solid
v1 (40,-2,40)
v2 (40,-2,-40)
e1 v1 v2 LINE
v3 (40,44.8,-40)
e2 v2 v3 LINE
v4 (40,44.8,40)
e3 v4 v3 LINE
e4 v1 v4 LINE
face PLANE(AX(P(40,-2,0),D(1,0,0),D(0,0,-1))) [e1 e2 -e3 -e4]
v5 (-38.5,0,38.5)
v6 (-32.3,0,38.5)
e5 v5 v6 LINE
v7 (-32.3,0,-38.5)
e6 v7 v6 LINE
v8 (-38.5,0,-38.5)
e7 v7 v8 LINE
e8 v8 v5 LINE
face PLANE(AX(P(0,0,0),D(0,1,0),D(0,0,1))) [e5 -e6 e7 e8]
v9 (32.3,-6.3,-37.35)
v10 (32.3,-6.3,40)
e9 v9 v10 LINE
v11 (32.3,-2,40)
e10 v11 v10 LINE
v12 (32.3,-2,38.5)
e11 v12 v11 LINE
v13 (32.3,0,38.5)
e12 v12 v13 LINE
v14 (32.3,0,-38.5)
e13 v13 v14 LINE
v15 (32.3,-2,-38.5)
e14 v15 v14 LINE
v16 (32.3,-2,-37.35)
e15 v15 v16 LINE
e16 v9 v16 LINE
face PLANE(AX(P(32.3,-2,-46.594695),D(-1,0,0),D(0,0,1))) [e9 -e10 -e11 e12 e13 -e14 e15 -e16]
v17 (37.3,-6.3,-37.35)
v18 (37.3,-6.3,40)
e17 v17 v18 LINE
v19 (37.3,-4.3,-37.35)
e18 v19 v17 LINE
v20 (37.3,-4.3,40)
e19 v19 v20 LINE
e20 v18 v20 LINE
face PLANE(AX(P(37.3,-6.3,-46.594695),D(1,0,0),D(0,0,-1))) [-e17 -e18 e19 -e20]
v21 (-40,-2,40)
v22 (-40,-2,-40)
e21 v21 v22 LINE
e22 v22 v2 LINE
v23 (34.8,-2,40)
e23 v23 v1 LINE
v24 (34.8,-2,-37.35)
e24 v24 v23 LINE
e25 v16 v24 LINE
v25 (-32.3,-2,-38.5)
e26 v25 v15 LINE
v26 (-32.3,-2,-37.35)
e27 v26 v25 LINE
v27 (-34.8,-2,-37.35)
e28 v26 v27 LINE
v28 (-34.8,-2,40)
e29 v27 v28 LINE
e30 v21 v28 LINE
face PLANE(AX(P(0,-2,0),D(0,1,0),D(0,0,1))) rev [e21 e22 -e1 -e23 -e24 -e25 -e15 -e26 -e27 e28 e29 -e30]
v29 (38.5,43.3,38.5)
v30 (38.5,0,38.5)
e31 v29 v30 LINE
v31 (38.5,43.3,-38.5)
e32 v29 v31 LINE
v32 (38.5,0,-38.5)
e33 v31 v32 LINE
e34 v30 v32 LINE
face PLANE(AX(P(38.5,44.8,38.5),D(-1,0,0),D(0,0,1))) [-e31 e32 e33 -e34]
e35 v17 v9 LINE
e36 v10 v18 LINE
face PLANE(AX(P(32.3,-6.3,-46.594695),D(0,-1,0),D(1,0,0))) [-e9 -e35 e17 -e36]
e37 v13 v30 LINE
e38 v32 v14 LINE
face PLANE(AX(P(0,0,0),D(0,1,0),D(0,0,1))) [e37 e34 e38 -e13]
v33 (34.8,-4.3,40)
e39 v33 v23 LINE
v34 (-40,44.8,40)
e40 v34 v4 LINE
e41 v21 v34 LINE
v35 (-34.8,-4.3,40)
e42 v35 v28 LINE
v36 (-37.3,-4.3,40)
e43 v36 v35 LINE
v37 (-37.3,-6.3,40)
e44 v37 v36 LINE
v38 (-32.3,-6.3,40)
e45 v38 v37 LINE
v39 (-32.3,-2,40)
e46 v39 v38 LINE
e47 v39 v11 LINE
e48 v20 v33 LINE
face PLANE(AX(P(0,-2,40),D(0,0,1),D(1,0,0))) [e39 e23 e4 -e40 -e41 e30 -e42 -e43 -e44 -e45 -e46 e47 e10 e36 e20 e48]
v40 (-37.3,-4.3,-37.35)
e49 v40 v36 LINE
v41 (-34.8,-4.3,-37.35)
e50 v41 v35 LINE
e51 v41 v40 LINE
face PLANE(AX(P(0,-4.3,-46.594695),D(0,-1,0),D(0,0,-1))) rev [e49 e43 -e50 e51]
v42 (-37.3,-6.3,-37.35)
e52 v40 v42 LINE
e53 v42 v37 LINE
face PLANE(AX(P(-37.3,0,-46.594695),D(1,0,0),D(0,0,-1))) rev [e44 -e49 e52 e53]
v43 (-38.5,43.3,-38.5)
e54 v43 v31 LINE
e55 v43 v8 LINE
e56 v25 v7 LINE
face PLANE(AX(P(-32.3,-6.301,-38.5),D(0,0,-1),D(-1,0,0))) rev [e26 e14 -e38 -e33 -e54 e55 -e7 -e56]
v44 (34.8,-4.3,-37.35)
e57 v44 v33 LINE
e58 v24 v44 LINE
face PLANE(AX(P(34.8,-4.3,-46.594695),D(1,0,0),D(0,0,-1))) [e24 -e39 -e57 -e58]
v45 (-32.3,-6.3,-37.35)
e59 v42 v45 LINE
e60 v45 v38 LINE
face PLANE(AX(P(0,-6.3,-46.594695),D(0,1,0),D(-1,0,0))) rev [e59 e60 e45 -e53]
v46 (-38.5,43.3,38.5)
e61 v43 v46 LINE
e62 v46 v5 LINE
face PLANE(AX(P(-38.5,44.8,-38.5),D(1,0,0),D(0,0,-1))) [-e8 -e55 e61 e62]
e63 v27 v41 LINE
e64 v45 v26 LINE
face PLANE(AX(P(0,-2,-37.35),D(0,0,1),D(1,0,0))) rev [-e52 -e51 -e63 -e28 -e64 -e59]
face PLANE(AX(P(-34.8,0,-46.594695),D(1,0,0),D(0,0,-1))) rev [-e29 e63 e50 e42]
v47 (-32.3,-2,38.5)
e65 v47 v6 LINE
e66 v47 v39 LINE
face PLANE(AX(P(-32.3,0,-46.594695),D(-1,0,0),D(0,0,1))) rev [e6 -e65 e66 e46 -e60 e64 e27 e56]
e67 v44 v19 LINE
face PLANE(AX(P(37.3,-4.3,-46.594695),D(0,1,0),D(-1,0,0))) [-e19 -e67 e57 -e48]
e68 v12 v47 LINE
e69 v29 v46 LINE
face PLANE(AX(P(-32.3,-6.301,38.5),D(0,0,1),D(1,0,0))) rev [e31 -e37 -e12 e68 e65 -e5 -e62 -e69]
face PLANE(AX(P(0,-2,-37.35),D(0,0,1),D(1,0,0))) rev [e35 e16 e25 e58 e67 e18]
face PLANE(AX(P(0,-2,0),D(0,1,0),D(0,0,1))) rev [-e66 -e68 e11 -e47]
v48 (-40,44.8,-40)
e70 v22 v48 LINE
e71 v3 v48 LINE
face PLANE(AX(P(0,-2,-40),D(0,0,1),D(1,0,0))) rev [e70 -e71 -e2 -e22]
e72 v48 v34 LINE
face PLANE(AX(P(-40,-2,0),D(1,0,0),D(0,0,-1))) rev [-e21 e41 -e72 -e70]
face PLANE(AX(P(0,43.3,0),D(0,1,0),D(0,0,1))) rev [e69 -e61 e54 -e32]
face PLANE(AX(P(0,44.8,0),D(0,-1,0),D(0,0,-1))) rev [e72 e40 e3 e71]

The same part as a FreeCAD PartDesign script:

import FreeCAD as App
import Part
import Sketcher

V = App.Vector
Q = App.Units.Quantity


def add_polygon(sketch, points):
    """Adds a closed chain of lines whose ends are joined by coincident constraints."""
    first, n = sketch.GeometryCount, len(points)
    for a, b in zip(points, points[1:] + points[:1]):
        sketch.addGeometry(Part.LineSegment(App.Vector(*a, 0), App.Vector(*b, 0)), False)
    for i in range(n):
        sketch.addConstraint(Sketcher.Constraint("Coincident", first + i, 2, first + (i + 1) % n, 1))

doc = App.newDocument("Part")
params = doc.addObject("Spreadsheet::Sheet", "Params")
for row, (alias, value) in enumerate([
    ("sketch1_width", "80 mm"),
    ("pad1_length", "2 mm"),
    ("sketch2_width", "5 mm"),
    ("sketch2_height", "2 mm"),
    ("sketch2_height2", "2.3 mm"),
    ("pad2_length", "77.35 mm"),
    ("sketch3_height", "77 mm"),
    ("sketch3_width", "64.6 mm"),
    ("sketch4_width", "80 mm"),
    ("sketch4_width2", "77 mm"),
    ("pad3_length", "44.8 mm"),
    ("sketch5_width", "80 mm"),
    ("pad4_length", "1.5 mm"),
], start=1):
    params.set(f"A{row}", alias)
    params.set(f"B{row}", "=" + value)
    params.setAlias(f"B{row}", alias)

body = doc.addObject("PartDesign::Body", "Body")

# Sketch on XZ plane
sketch1 = body.newObject("Sketcher::SketchObject", "Sketch")
sketch1.AttachmentSupport = (doc.getObject("XZ_Plane"), [""])
sketch1.MapMode = "FlatFace"
add_polygon(sketch1, [(-40, -40), (-40, 40), (40, 40), (40, -40)])  # lines 0-3
sketch1.addConstraint([
    Sketcher.Constraint("Vertical", 0),
    Sketcher.Constraint("Horizontal", 1),
    Sketcher.Constraint("Vertical", 2),
    Sketcher.Constraint("Horizontal", 3),
    Sketcher.Constraint("Symmetric", 0, 2, 2, 2, -1, 1),
    Sketcher.Constraint("Equal", 3, 0),
    Sketcher.Constraint("DistanceX", 1, 1, 1, 2, Q("80 mm")),
])
sketch1.setExpression("Constraints[10]", "Params.sketch1_width")
pad1 = body.newObject("PartDesign::Pad", "Pad")
pad1.Profile = sketch1
pad1.setExpression("Length", "Params.pad1_length")

# Sketch on XY plane
sketch2 = body.newObject("Sketcher::SketchObject", "Sketch001")
sketch2.AttachmentSupport = (doc.getObject("XY_Plane"), [""])
sketch2.MapMode = "FlatFace"
sketch2.AttachmentOffset = App.Placement(V(0, 0, 40), App.Rotation())
add_polygon(sketch2, [(-32.3, -2), (-34.8, -2), (-34.8, -4.3), (-37.3, -4.3), (-37.3, -6.3), (-32.3, -6.3)])  # lines 0-5
add_polygon(sketch2, [(32.3, -6.3), (37.3, -6.3), (37.3, -4.3), (34.8, -4.3), (34.8, -2), (32.3, -2)])  # lines 6-11
sketch2.addConstraint([
    Sketcher.Constraint("Horizontal", 0),
    Sketcher.Constraint("Vertical", 1),
    Sketcher.Constraint("Horizontal", 2),
    Sketcher.Constraint("Vertical", 3),
    Sketcher.Constraint("Horizontal", 4),
    Sketcher.Constraint("Vertical", 5),
    Sketcher.Constraint("Horizontal", 6),
    Sketcher.Constraint("Vertical", 7),
    Sketcher.Constraint("Horizontal", 8),
    Sketcher.Constraint("Vertical", 9),
    Sketcher.Constraint("Horizontal", 10),
    Sketcher.Constraint("Vertical", 11),
    Sketcher.Constraint("Symmetric", 3, 2, 6, 2, -2),
    Sketcher.Constraint("Symmetric", 1, 2, 8, 2, -2),
    Sketcher.Constraint("Symmetric", 5, 2, 10, 2, -2),
    Sketcher.Constraint("Equal", 0, 2),
    Sketcher.Constraint("DistanceX", 4, 1, 4, 2, Q("5 mm")),
    Sketcher.Constraint("DistanceY", 3, 2, 3, 1, Q("2 mm")),
    Sketcher.Constraint("DistanceY", 1, 2, 1, 1, Q("2.3 mm")),
    Sketcher.Constraint("DistanceY", 0, 2, -1, 1, Q("2 mm")),
    Sketcher.Constraint("DistanceX", 0, 2, -1, 1, Q("34.8 mm")),
])
sketch2.setExpression("Constraints[28]", "Params.sketch2_width")
sketch2.setExpression("Constraints[29]", "Params.sketch2_height")
sketch2.setExpression("Constraints[30]", "Params.sketch2_height2")
pad2 = body.newObject("PartDesign::Pad", "Pad001")
pad2.Profile = sketch2
pad2.setExpression("Length", "Params.pad2_length")
pad2.Reversed = True

# Sketch on XZ plane
sketch3 = body.newObject("Sketcher::SketchObject", "Sketch002")
sketch3.AttachmentSupport = (doc.getObject("XZ_Plane"), [""])
sketch3.MapMode = "FlatFace"
add_polygon(sketch3, [(-32.3, -38.5), (-32.3, 38.5), (32.3, 38.5), (32.3, -38.5)])  # lines 0-3
sketch3.addConstraint([
    Sketcher.Constraint("Vertical", 0),
    Sketcher.Constraint("Horizontal", 1),
    Sketcher.Constraint("Vertical", 2),
    Sketcher.Constraint("Horizontal", 3),
    Sketcher.Constraint("Symmetric", 0, 2, 2, 2, -1, 1),
    Sketcher.Constraint("DistanceY", 0, 1, 0, 2, Q("77 mm")),
    Sketcher.Constraint("DistanceX", 1, 1, 1, 2, Q("64.6 mm")),
])
sketch3.setExpression("Constraints[9]", "Params.sketch3_height")
sketch3.setExpression("Constraints[10]", "Params.sketch3_width")
pocket1 = body.newObject("PartDesign::Pocket", "Pocket")
pocket1.Profile = sketch3
pocket1.Type = "UpToFirst"
pocket1.Reversed = True

# Sketch on XZ plane
sketch4 = body.newObject("Sketcher::SketchObject", "Sketch003")
sketch4.AttachmentSupport = (doc.getObject("XZ_Plane"), [""])
sketch4.MapMode = "FlatFace"
add_polygon(sketch4, [(-40, -40), (-40, 40), (40, 40), (40, -40)])  # lines 0-3
add_polygon(sketch4, [(38.5, 38.5), (-38.5, 38.5), (-38.5, -38.5), (38.5, -38.5)])  # lines 4-7
sketch4.addConstraint([
    Sketcher.Constraint("Vertical", 0),
    Sketcher.Constraint("Horizontal", 1),
    Sketcher.Constraint("Vertical", 2),
    Sketcher.Constraint("Horizontal", 3),
    Sketcher.Constraint("Horizontal", 4),
    Sketcher.Constraint("Vertical", 5),
    Sketcher.Constraint("Horizontal", 6),
    Sketcher.Constraint("Vertical", 7),
    Sketcher.Constraint("Symmetric", 0, 2, 2, 2, -1, 1),
    Sketcher.Constraint("Symmetric", 4, 2, 6, 2, -1, 1),
    Sketcher.Constraint("Equal", 3, 0),
    Sketcher.Constraint("Equal", 6, 5),
    Sketcher.Constraint("DistanceX", 1, 1, 1, 2, Q("80 mm")),
    Sketcher.Constraint("DistanceX", 4, 2, 4, 1, Q("77 mm")),
])
sketch4.setExpression("Constraints[20]", "Params.sketch4_width")
sketch4.setExpression("Constraints[21]", "Params.sketch4_width2")
pad3 = body.newObject("PartDesign::Pad", "Pad002")
pad3.Profile = sketch4
pad3.setExpression("Length", "Params.pad3_length")
pad3.Reversed = True

# Sketch on XZ plane
sketch5 = body.newObject("Sketcher::SketchObject", "Sketch004")
sketch5.AttachmentSupport = (doc.getObject("XZ_Plane"), [""])
sketch5.MapMode = "FlatFace"
sketch5.AttachmentOffset = App.Placement(V(0, 0, -44.8), App.Rotation())
add_polygon(sketch5, [(-40, -40), (-40, 40), (40, 40), (40, -40)])  # lines 0-3
sketch5.addConstraint([
    Sketcher.Constraint("Vertical", 0),
    Sketcher.Constraint("Horizontal", 1),
    Sketcher.Constraint("Vertical", 2),
    Sketcher.Constraint("Horizontal", 3),
    Sketcher.Constraint("Symmetric", 0, 2, 2, 2, -1, 1),
    Sketcher.Constraint("Equal", 3, 0),
    Sketcher.Constraint("DistanceX", 1, 1, 1, 2, Q("80 mm")),
])
sketch5.setExpression("Constraints[10]", "Params.sketch5_width")
pad4 = body.newObject("PartDesign::Pad", "Pad003")
pad4.Profile = sketch5
pad4.setExpression("Length", "Params.pad4_length")

doc.recompute()
